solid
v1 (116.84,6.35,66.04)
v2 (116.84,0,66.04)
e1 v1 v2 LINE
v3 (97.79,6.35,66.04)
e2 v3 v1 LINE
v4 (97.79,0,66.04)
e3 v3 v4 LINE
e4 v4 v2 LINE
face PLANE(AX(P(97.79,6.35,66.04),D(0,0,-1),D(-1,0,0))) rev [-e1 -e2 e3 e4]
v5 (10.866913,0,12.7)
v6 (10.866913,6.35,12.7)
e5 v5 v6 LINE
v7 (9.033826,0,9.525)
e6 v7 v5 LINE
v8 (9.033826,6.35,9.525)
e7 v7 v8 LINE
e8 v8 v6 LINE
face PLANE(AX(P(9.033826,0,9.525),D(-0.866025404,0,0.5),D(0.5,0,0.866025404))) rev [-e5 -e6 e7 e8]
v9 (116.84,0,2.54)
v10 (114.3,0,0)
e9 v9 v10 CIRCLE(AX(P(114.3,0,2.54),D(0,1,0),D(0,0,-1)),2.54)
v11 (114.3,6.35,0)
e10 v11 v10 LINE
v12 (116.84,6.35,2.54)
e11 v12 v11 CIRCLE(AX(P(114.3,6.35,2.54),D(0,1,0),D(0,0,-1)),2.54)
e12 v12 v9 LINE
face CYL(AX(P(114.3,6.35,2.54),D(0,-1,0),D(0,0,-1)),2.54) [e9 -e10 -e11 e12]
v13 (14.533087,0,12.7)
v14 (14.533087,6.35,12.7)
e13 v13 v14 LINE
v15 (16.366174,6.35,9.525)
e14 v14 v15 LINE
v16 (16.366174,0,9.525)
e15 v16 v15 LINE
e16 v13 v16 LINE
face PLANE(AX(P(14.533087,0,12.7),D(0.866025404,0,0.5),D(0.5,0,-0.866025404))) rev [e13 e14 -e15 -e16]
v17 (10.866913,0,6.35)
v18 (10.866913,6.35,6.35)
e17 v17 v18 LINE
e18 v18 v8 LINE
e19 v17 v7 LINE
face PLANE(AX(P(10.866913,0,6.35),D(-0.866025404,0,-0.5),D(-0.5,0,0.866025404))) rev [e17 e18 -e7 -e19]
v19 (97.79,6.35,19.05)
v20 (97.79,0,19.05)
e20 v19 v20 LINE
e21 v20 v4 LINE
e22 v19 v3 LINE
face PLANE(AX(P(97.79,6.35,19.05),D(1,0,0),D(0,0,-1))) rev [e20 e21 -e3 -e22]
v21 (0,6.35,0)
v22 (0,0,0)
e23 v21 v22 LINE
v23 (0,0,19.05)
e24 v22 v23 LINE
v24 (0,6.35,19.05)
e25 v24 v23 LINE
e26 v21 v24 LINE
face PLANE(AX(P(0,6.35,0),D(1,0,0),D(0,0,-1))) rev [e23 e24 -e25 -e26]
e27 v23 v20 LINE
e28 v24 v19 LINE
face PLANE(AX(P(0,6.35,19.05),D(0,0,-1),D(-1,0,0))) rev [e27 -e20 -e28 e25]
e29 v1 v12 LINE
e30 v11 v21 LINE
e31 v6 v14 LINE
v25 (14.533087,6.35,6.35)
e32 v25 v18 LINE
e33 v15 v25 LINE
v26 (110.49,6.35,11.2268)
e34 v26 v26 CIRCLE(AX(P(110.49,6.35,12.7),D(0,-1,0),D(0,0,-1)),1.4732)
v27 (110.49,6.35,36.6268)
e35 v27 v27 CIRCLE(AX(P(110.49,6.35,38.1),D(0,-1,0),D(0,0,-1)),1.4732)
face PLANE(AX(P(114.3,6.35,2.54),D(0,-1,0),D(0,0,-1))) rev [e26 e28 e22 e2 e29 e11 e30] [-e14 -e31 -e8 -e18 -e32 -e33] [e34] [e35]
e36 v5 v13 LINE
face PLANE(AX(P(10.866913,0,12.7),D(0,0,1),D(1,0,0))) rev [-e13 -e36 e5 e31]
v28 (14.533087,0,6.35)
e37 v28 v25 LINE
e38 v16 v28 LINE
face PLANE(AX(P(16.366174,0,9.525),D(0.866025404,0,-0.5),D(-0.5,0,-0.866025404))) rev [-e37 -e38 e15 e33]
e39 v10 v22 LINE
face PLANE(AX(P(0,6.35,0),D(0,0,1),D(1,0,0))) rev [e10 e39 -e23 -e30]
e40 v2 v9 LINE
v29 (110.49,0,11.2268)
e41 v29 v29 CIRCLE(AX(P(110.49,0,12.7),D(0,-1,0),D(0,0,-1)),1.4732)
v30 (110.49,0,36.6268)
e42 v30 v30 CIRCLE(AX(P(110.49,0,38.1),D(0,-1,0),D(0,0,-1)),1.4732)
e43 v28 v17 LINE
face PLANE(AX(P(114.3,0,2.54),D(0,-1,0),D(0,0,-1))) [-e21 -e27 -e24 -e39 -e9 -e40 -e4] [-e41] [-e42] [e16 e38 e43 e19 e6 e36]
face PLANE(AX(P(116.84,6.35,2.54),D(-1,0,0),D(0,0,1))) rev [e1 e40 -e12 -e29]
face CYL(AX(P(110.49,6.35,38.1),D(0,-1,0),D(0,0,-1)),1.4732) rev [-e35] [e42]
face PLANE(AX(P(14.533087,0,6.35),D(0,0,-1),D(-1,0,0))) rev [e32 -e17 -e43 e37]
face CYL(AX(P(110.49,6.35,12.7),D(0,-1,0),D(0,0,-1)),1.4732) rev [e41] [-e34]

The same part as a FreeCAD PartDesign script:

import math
import FreeCAD as App
import Part
import Sketcher
from FreeCAD import Vector
Q = App.Units.Quantity


def add_polygon(sketch, points):
    """Adds a closed chain of lines whose ends are joined by coincident constraints."""
    first, n = sketch.GeometryCount, len(points)
    for a, b in zip(points, points[1:] + points[:1]):
        sketch.addGeometry(Part.LineSegment(App.Vector(*a, 0), App.Vector(*b, 0)), False)
    for i in range(n):
        sketch.addConstraint(Sketcher.Constraint("Coincident", first + i, 2, first + (i + 1) % n, 1))

doc = App.newDocument("Part")
body = doc.addObject("PartDesign::Body", "Body")

sketch1 = body.newObject("Sketcher::SketchObject", "Sketch")
sketch1.AttachmentSupport = (doc.getObject("XZ_Plane"), [""])
sketch1.MapMode = "FlatFace"
sketch1.addGeometry(Part.LineSegment(Vector(114.3, 0, 0), Vector(0, 0, 0)), False)
sketch1.addGeometry(Part.LineSegment(Vector(0, 0, 0), Vector(0, 19.1, 0)), False)
sketch1.addGeometry(Part.LineSegment(Vector(0, 19.1, 0), Vector(97.8, 19.1, 0)), False)
sketch1.addGeometry(Part.LineSegment(Vector(97.8, 19.1, 0), Vector(97.8, 66, 0)), False)
sketch1.addGeometry(Part.LineSegment(Vector(97.8, 66, 0), Vector(116.8, 66, 0)), False)
sketch1.addGeometry(Part.LineSegment(Vector(116.8, 66, 0), Vector(116.8, 2.5, 0)), False)
sketch1.addGeometry(Part.ArcOfCircle(Part.Circle(Vector(114.3, 2.5, 0), Vector(0, 0, 1), 2.5), math.radians(-90), math.radians(0)), False)
sketch1.addConstraint(Sketcher.Constraint("Coincident", 0, 2, 1, 1))
sketch1.addConstraint(Sketcher.Constraint("Coincident", 1, 2, 2, 1))
sketch1.addConstraint(Sketcher.Constraint("Coincident", 2, 2, 3, 1))
sketch1.addConstraint(Sketcher.Constraint("Coincident", 3, 2, 4, 1))
sketch1.addConstraint(Sketcher.Constraint("Coincident", 4, 2, 5, 1))
sketch1.addConstraint(Sketcher.Constraint("Tangent", 5, 2, 6, 2))
sketch1.addConstraint(Sketcher.Constraint("Tangent", 6, 1, 0, 1))
sketch1.addConstraint(Sketcher.Constraint("Horizontal", 0))
sketch1.addConstraint(Sketcher.Constraint("Vertical", 1))
sketch1.addConstraint(Sketcher.Constraint("Horizontal", 2))
sketch1.addConstraint(Sketcher.Constraint("Vertical", 3))
sketch1.addConstraint(Sketcher.Constraint("Horizontal", 4))
sketch1.addConstraint(Sketcher.Constraint("Vertical", 5))
sketch1.addConstraint(Sketcher.Constraint("Coincident", 0, 2, -1, 1))
sketch1.addConstraint(Sketcher.Constraint("Equal", 4, 1))
sketch1.addConstraint(Sketcher.Constraint("Radius", 6, Q("0.1 in")))
sketch1.addConstraint(Sketcher.Constraint("DistanceX", 0, 2, 0, 1, Q("4.5 in")))
sketch1.addConstraint(Sketcher.Constraint("DistanceY", 5, 2, 5, 1, Q("2.5 in")))
sketch1.addConstraint(Sketcher.Constraint("DistanceX", 2, 1, 2, 2, Q("3.85 in")))
pad1 = body.newObject("PartDesign::Pad", "Pad")
pad1.Profile = sketch1
pad1.Length = Q("0.25 in")
pad1.Reversed = True

sketch2 = body.newObject("Sketcher::SketchObject", "Sketch001")
sketch2.AttachmentSupport = (doc.getObject("XZ_Plane"), [""])
sketch2.MapMode = "FlatFace"
sketch2.AttachmentOffset = App.Placement(Vector(0, 0, -0.25 * 25.4), App.Rotation())
add_polygon(sketch2, [(14.5, 12.7), (16.4, 9.5), (14.5, 6.3), (10.9, 6.3), (9, 9.5), (10.9, 12.7)])
sketch2.addConstraint(Sketcher.Constraint("Horizontal", 2))
sketch2.addConstraint(Sketcher.Constraint("Horizontal", 5))
sketch2.addConstraint(Sketcher.Constraint("Parallel", 0, 3))
sketch2.addConstraint(Sketcher.Constraint("Parallel", 1, 4))
sketch2.addConstraint(Sketcher.Constraint("Horizontal", 0, 2, 3, 2))
sketch2.addConstraint(Sketcher.Constraint("Vertical", 2, 2, 4, 2))
sketch2.addConstraint(Sketcher.Constraint("Vertical", 1, 2, 5, 2))
sketch2.addConstraint(Sketcher.Constraint("Angle", 0, Q("-60 deg")))
sketch2.addConstraint(Sketcher.Constraint("DistanceY", -1, 1, 4, 2, Q("0.5 in")))
sketch2.addConstraint(Sketcher.Constraint("DistanceY", -1, 1, 1, 2, Q("0.25 in")))
sketch2.addConstraint(Sketcher.Constraint("DistanceX", 2, 2, 2, 1, 3.666174))
sketch2.addConstraint(Sketcher.Constraint("DistanceX", -1, 1, 0, 2, 16.366174))
pocket1 = body.newObject("PartDesign::Pocket", "Pocket")
pocket1.Profile = sketch2
pocket1.Type = "ThroughAll"
pocket1.Reversed = True

sketch3 = body.newObject("Sketcher::SketchObject", "Sketch002")
sketch3.AttachmentSupport = (doc.getObject("XZ_Plane"), [""])
sketch3.MapMode = "FlatFace"
sketch3.addGeometry(Part.Circle(Vector(110.5, 38.1, 0), Vector(0, 0, 1), 1.5), False)
sketch3.addGeometry(Part.Circle(Vector(110.5, 12.7, 0), Vector(0, 0, 1), 1.5), False)
sketch3.addConstraint(Sketcher.Constraint("Equal", 0, 1))
sketch3.addConstraint(Sketcher.Constraint("Vertical", 0, 3, 1, 3))
sketch3.addConstraint(Sketcher.Constraint("Diameter", 0, Q("0.116 in")))
sketch3.addConstraint(Sketcher.Constraint("DistanceY", 1, 3, 0, 3, Q("1 in")))
sketch3.addConstraint(Sketcher.Constraint("DistanceY", -1, 1, 0, 3, Q("1.5 in")))
sketch3.addConstraint(Sketcher.Constraint("DistanceX", -1, 1, 0, 3, Q("4.35 in")))
pocket2 = body.newObject("PartDesign::Pocket", "Pocket001")
pocket2.Profile = sketch3
pocket2.Type = "ThroughAll"

doc.recompute()
